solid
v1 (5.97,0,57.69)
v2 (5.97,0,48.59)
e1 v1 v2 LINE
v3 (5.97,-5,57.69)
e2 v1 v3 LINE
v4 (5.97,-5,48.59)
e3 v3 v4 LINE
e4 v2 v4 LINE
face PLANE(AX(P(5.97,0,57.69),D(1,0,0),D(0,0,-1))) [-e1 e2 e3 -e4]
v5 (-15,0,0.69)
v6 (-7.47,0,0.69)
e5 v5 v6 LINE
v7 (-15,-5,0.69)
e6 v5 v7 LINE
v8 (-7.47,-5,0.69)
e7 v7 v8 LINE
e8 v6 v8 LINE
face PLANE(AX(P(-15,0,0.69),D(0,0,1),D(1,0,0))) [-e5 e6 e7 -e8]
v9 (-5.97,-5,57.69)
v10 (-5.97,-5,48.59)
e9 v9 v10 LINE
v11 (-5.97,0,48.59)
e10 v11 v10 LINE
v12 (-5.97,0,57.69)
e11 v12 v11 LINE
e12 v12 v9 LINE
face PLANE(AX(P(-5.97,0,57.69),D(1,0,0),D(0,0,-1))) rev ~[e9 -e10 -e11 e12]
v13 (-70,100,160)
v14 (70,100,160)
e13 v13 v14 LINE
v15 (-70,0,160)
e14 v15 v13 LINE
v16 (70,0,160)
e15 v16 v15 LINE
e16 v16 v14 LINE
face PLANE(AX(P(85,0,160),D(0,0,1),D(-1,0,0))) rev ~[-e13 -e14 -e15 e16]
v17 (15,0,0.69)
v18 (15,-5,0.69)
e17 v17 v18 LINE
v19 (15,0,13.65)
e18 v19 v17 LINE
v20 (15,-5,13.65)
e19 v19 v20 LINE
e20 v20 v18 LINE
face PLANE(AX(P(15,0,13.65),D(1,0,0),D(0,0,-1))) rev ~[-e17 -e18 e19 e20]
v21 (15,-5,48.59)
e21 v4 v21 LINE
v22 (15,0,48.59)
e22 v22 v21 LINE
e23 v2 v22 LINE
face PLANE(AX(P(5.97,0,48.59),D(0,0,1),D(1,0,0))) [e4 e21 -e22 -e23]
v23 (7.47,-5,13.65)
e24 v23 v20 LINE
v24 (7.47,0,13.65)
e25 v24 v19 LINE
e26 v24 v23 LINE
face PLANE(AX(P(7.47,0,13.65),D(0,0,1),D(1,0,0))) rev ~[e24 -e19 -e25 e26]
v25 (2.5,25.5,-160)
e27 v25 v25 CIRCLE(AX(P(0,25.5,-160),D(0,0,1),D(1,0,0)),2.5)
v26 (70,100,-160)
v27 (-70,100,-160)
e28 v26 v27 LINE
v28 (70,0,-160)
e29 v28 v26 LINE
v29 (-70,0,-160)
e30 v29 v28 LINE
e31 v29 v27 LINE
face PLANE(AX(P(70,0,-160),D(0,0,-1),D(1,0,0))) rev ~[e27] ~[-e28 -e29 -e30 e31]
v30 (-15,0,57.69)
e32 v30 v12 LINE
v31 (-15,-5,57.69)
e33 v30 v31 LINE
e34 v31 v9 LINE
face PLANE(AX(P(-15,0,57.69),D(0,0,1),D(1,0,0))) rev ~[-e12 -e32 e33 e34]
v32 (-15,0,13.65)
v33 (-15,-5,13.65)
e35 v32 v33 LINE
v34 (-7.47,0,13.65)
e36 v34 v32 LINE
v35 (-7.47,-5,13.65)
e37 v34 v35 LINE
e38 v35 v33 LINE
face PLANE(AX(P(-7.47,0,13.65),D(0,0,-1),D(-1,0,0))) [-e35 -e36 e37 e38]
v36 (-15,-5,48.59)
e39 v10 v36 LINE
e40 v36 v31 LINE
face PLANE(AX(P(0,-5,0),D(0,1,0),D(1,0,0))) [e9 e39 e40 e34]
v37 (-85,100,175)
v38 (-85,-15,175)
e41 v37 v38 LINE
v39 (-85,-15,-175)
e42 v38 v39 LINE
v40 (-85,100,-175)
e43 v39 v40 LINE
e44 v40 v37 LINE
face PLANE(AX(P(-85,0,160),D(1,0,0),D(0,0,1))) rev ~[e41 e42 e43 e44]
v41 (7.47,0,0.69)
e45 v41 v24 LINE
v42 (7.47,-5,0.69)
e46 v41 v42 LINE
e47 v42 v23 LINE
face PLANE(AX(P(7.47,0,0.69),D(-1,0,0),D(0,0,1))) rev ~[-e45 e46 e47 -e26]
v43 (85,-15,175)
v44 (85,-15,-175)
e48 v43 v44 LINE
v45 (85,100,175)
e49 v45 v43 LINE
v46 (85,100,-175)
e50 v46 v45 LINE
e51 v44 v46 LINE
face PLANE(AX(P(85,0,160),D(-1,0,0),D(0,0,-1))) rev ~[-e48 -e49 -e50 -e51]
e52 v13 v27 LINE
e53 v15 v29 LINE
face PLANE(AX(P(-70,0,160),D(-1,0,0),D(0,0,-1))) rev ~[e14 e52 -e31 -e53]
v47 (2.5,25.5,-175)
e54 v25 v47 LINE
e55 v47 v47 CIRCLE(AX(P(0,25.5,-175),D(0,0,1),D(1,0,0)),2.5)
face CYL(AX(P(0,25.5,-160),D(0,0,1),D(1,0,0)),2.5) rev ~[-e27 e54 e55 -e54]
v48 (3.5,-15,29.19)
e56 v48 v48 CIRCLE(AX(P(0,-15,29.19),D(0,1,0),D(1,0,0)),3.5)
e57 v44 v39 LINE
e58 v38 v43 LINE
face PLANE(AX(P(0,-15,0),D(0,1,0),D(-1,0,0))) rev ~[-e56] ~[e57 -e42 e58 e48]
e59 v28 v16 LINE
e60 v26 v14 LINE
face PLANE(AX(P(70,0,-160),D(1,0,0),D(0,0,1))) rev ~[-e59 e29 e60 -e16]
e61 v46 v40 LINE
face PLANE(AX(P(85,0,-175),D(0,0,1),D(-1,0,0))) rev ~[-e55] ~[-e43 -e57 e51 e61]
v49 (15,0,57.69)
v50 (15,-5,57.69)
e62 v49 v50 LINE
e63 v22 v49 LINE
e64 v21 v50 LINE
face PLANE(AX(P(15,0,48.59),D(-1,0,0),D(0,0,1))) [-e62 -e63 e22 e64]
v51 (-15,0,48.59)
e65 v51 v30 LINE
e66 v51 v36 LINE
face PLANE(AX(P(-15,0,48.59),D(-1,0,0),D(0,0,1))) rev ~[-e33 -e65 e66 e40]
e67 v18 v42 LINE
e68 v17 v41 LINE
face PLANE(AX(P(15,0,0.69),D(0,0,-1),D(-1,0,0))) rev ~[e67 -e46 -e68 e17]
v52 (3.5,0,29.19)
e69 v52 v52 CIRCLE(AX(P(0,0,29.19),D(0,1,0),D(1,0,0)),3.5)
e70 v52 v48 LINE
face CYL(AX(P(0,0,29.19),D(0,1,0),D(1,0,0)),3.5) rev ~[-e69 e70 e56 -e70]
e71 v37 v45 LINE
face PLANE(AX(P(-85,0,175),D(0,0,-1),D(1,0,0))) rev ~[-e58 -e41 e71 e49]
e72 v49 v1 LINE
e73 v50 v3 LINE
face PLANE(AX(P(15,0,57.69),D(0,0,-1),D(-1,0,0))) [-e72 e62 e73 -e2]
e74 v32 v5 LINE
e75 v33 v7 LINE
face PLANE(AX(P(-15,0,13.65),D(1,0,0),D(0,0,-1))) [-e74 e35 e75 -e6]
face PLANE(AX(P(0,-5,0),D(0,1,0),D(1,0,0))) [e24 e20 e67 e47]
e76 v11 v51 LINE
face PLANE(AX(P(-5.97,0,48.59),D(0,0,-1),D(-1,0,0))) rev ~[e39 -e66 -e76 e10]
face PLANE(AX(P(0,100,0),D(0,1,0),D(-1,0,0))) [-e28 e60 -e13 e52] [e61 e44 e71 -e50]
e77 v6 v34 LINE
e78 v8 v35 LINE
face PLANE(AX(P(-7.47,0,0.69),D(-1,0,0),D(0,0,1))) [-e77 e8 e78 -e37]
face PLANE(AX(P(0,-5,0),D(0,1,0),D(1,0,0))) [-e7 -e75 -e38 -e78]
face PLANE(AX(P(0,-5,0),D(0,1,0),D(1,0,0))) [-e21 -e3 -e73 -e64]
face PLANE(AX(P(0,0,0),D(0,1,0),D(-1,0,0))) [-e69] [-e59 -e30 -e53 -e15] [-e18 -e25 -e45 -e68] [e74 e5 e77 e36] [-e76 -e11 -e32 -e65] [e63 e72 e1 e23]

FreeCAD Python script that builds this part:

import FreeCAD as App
import Part
import Sketcher

doc = App.newDocument("Part")
body = doc.addObject("PartDesign::Body", "Body")

# Sketch on XZ plane
sketch1 = doc.addObject("Sketcher::SketchObject", "Sketch")
body.addObject(sketch1)
sketch1.AttachmentSupport = (doc.XZ_Plane, [""])
sketch1.MapMode = "FlatFace"
sketch1.addGeometry([
    Part.LineSegment(App.Vector(85, -160, 0), App.Vector(85, -175, 0)),
    Part.LineSegment(App.Vector(85, -175, 0), App.Vector(-85, -175, 0)),
    Part.LineSegment(App.Vector(-85, -175, 0), App.Vector(-85, -160, 0)),
    Part.LineSegment(App.Vector(-85, -160, 0), App.Vector(85, -160, 0)),
], False)
sketch1.addConstraint([
    Sketcher.Constraint("Coincident", 0, 2, 1, 1),
    Sketcher.Constraint("Coincident", 1, 2, 2, 1),
    Sketcher.Constraint("Coincident", 2, 2, 3, 1),
    Sketcher.Constraint("Coincident", 3, 2, 0, 1),
    Sketcher.Constraint("Vertical", 0),
    Sketcher.Constraint("Horizontal", 1),
    Sketcher.Constraint("Vertical", 2),
    Sketcher.Constraint("Horizontal", 3),
    Sketcher.Constraint("DistanceX", 1, 2, 1, 1, 170.0),
    Sketcher.Constraint("DistanceY", 0, 2, 0, 1, 15.0),
    Sketcher.Constraint("DistanceX", -1, 1, 0, 2, 85.0),
    Sketcher.Constraint("DistanceY", 0, 2, -1, 1, 175.0),
])
pad1 = doc.addObject("PartDesign::Pad", "Pad")
body.addObject(pad1)
pad1.Profile = sketch1
pad1.Length = 100
pad1.Reversed = True

# Sketch on XZ plane
sketch2 = doc.addObject("Sketcher::SketchObject", "Sketch001")
body.addObject(sketch2)
sketch2.AttachmentSupport = (doc.XZ_Plane, [""])
sketch2.MapMode = "FlatFace"
sketch2.addGeometry([
    Part.LineSegment(App.Vector(-70, -160, 0), App.Vector(-85, -160, 0)),
    Part.LineSegment(App.Vector(-85, -160, 0), App.Vector(-85, 160, 0)),
    Part.LineSegment(App.Vector(-85, 160, 0), App.Vector(-70, 160, 0)),
    Part.LineSegment(App.Vector(-70, 160, 0), App.Vector(-70, -160, 0)),
], False)
sketch2.addConstraint([
    Sketcher.Constraint("Coincident", 0, 2, 1, 1),
    Sketcher.Constraint("Coincident", 1, 2, 2, 1),
    Sketcher.Constraint("Coincident", 2, 2, 3, 1),
    Sketcher.Constraint("Coincident", 3, 2, 0, 1),
    Sketcher.Constraint("Horizontal", 0),
    Sketcher.Constraint("Vertical", 1),
    Sketcher.Constraint("Horizontal", 2),
    Sketcher.Constraint("Vertical", 3),
    Sketcher.Constraint("DistanceX", 0, 2, 0, 1, 15.0),
    Sketcher.Constraint("DistanceY", 1, 1, 1, 2, 320.0),
    Sketcher.Constraint("DistanceX", 0, 2, -1, 1, 85.0),
    Sketcher.Constraint("DistanceY", 0, 2, -1, 1, 160.0),
])
pad2 = doc.addObject("PartDesign::Pad", "Pad001")
body.addObject(pad2)
pad2.Profile = sketch2
pad2.Length = 100
pad2.Reversed = True

# Sketch on XZ plane
sketch3 = doc.addObject("Sketcher::SketchObject", "Sketch002")
body.addObject(sketch3)
sketch3.AttachmentSupport = (doc.XZ_Plane, [""])
sketch3.MapMode = "FlatFace"
sketch3.addGeometry([
    Part.LineSegment(App.Vector(85, -175, 0), App.Vector(-85, -175, 0)),
    Part.LineSegment(App.Vector(-85, -175, 0), App.Vector(-85, 175, 0)),
    Part.LineSegment(App.Vector(-85, 175, 0), App.Vector(85, 175, 0)),
    Part.LineSegment(App.Vector(85, 175, 0), App.Vector(85, -175, 0)),
], False)
sketch3.addConstraint([
    Sketcher.Constraint("Coincident", 0, 2, 1, 1),
    Sketcher.Constraint("Coincident", 1, 2, 2, 1),
    Sketcher.Constraint("Coincident", 2, 2, 3, 1),
    Sketcher.Constraint("Coincident", 3, 2, 0, 1),
    Sketcher.Constraint("Horizontal", 0),
    Sketcher.Constraint("Vertical", 1),
    Sketcher.Constraint("Horizontal", 2),
    Sketcher.Constraint("Vertical", 3),
    Sketcher.Constraint("Symmetric", 0, 2, 2, 2, -1, 1),
    Sketcher.Constraint("DistanceX", 0, 2, 0, 1, 170.0),
    Sketcher.Constraint("DistanceY", 1, 1, 1, 2, 350.0),
])
pad3 = doc.addObject("PartDesign::Pad", "Pad002")
body.addObject(pad3)
pad3.Profile = sketch3
pad3.Length = 15

# Sketch on XY plane
sketch4 = doc.addObject("Sketcher::SketchObject", "Sketch003")
body.addObject(sketch4)
sketch4.AttachmentSupport = (doc.XY_Plane, [""])
sketch4.MapMode = "FlatFace"
sketch4.AttachmentOffset = App.Placement(App.Vector(0, 0, -160), App.Rotation())
sketch4.addGeometry(Part.Circle(App.Vector(0, 25.5, 0), App.Vector(0, 0, 1), 2.5), False)
sketch4.addConstraint([
    Sketcher.Constraint("PointOnObject", 0, 3, -2),
    Sketcher.Constraint("Diameter", 0, 5.0),
    Sketcher.Constraint("DistanceY", -1, 1, 0, 3, 25.5),
])
pocket1 = doc.addObject("PartDesign::Pocket", "Pocket")
body.addObject(pocket1)
pocket1.Profile = sketch4
pocket1.Type = "ThroughAll"

# Sketch on XZ plane
sketch5 = doc.addObject("Sketcher::SketchObject", "Sketch004")
body.addObject(sketch5)
sketch5.AttachmentSupport = (doc.XZ_Plane, [""])
sketch5.MapMode = "FlatFace"
sketch5.addGeometry([
    Part.LineSegment(App.Vector(85, 175, 0), App.Vector(85, 160, 0)),
    Part.LineSegment(App.Vector(85, 160, 0), App.Vector(-85, 160, 0)),
    Part.LineSegment(App.Vector(-85, 160, 0), App.Vector(-85, 175, 0)),
    Part.LineSegment(App.Vector(-85, 175, 0), App.Vector(85, 175, 0)),
], False)
sketch5.addConstraint([
    Sketcher.Constraint("Coincident", 0, 2, 1, 1),
    Sketcher.Constraint("Coincident", 1, 2, 2, 1),
    Sketcher.Constraint("Coincident", 2, 2, 3, 1),
    Sketcher.Constraint("Coincident", 3, 2, 0, 1),
    Sketcher.Constraint("Vertical", 0),
    Sketcher.Constraint("Horizontal", 1),
    Sketcher.Constraint("Vertical", 2),
    Sketcher.Constraint("Horizontal", 3),
    Sketcher.Constraint("DistanceX", 1, 2, 1, 1, 170.0),
    Sketcher.Constraint("DistanceY", 0, 2, 0, 1, 15.0),
    Sketcher.Constraint("DistanceX", -1, 1, 0, 2, 85.0),
    Sketcher.Constraint("DistanceY", -1, 1, 0, 2, 160.0),
])
pad4 = doc.addObject("PartDesign::Pad", "Pad003")
body.addObject(pad4)
pad4.Profile = sketch5
pad4.Length = 100
pad4.Reversed = True

# Sketch on XZ plane
sketch6 = doc.addObject("Sketcher::SketchObject", "Sketch005")
body.addObject(sketch6)
sketch6.AttachmentSupport = (doc.XZ_Plane, [""])
sketch6.MapMode = "FlatFace"
sketch6.addGeometry([
    Part.LineSegment(App.Vector(85, 160, 0), App.Vector(85, -160, 0)),
    Part.LineSegment(App.Vector(85, -160, 0), App.Vector(70, -160, 0)),
    Part.LineSegment(App.Vector(70, -160, 0), App.Vector(70, 160, 0)),
    Part.LineSegment(App.Vector(70, 160, 0), App.Vector(85, 160, 0)),
], False)
sketch6.addConstraint([
    Sketcher.Constraint("Coincident", 0, 2, 1, 1),
    Sketcher.Constraint("Coincident", 1, 2, 2, 1),
    Sketcher.Constraint("Coincident", 2, 2, 3, 1),
    Sketcher.Constraint("Coincident", 3, 2, 0, 1),
    Sketcher.Constraint("Vertical", 0),
    Sketcher.Constraint("Horizontal", 1),
    Sketcher.Constraint("Vertical", 2),
    Sketcher.Constraint("Horizontal", 3),
    Sketcher.Constraint("DistanceX", 1, 2, 1, 1, 15.0),
    Sketcher.Constraint("DistanceY", 0, 2, 0, 1, 320.0),
    Sketcher.Constraint("DistanceX", -1, 1, 0, 2, 85.0),
    Sketcher.Constraint("DistanceY", 0, 2, -1, 1, 160.0),
])
pad5 = doc.addObject("PartDesign::Pad", "Pad004")
body.addObject(pad5)
pad5.Profile = sketch6
pad5.Length = 100
pad5.Reversed = True

# Sketch on XZ plane
sketch7 = doc.addObject("Sketcher::SketchObject", "Sketch006")
body.addObject(sketch7)
sketch7.AttachmentSupport = (doc.XZ_Plane, [""])
sketch7.MapMode = "FlatFace"
sketch7.addGeometry([
    Part.LineSegment(App.Vector(6, 58, 0), App.Vector(15, 58, 0)),  # 0
    Part.LineSegment(App.Vector(15, 58, 0), App.Vector(15, 49, 0)),  # 1
    Part.LineSegment(App.Vector(15, 49, 0), App.Vector(6, 49, 0)),  # 2
    Part.LineSegment(App.Vector(6, 49, 0), App.Vector(6, 58, 0)),  # 3
    Part.LineSegment(App.Vector(15, 14, 0), App.Vector(15, 1, 0)),  # 4
    Part.LineSegment(App.Vector(15, 1, 0), App.Vector(7, 1, 0)),  # 5
    Part.LineSegment(App.Vector(7, 1, 0), App.Vector(7, 14, 0)),  # 6
    Part.LineSegment(App.Vector(7, 14, 0), App.Vector(15, 14, 0)),  # 7
    Part.LineSegment(App.Vector(-15, 49, 0), App.Vector(-15, 58, 0)),  # 8
    Part.LineSegment(App.Vector(-15, 58, 0), App.Vector(-6, 58, 0)),  # 9
    Part.LineSegment(App.Vector(-6, 58, 0), App.Vector(-6, 49, 0)),  # 10
    Part.LineSegment(App.Vector(-6, 49, 0), App.Vector(-15, 49, 0)),  # 11
    Part.LineSegment(App.Vector(-7, 1, 0), App.Vector(-15, 1, 0)),  # 12
    Part.LineSegment(App.Vector(-15, 1, 0), App.Vector(-15, 14, 0)),  # 13
    Part.LineSegment(App.Vector(-15, 14, 0), App.Vector(-7, 14, 0)),  # 14
    Part.LineSegment(App.Vector(-7, 14, 0), App.Vector(-7, 1, 0)),  # 15
], False)
sketch7.addConstraint([
    Sketcher.Constraint("Coincident", 0, 2, 1, 1),
    Sketcher.Constraint("Coincident", 1, 2, 2, 1),
    Sketcher.Constraint("Coincident", 2, 2, 3, 1),
    Sketcher.Constraint("Coincident", 3, 2, 0, 1),
    Sketcher.Constraint("Coincident", 4, 2, 5, 1),
    Sketcher.Constraint("Coincident", 5, 2, 6, 1),
    Sketcher.Constraint("Coincident", 6, 2, 7, 1),
    Sketcher.Constraint("Coincident", 7, 2, 4, 1),
    Sketcher.Constraint("Coincident", 8, 2, 9, 1),
    Sketcher.Constraint("Coincident", 9, 2, 10, 1),
    Sketcher.Constraint("Coincident", 10, 2, 11, 1),
    Sketcher.Constraint("Coincident", 11, 2, 8, 1),
    Sketcher.Constraint("Coincident", 12, 2, 13, 1),
    Sketcher.Constraint("Coincident", 13, 2, 14, 1),
    Sketcher.Constraint("Coincident", 14, 2, 15, 1),
    Sketcher.Constraint("Coincident", 15, 2, 12, 1),
    Sketcher.Constraint("Horizontal", 0),
    Sketcher.Constraint("Vertical", 1),
    Sketcher.Constraint("Horizontal", 2),
    Sketcher.Constraint("Vertical", 3),
    Sketcher.Constraint("Vertical", 4),
    Sketcher.Constraint("Horizontal", 5),
    Sketcher.Constraint("Vertical", 6),
    Sketcher.Constraint("Horizontal", 7),
    Sketcher.Constraint("Vertical", 8),
    Sketcher.Constraint("Horizontal", 9),
    Sketcher.Constraint("Vertical", 10),
    Sketcher.Constraint("Horizontal", 11),
    Sketcher.Constraint("Horizontal", 12),
    Sketcher.Constraint("Vertical", 13),
    Sketcher.Constraint("Horizontal", 14),
    Sketcher.Constraint("Vertical", 15),
    Sketcher.Constraint("Symmetric", 0, 2, 8, 2, -2),
    Sketcher.Constraint("Symmetric", 2, 2, 10, 2, -2),
    Sketcher.Constraint("Symmetric", 4, 2, 12, 2, -2),
    Sketcher.Constraint("Symmetric", 6, 2, 14, 2, -2),
    Sketcher.Constraint("Vertical", 1, 2, 4, 2),
    Sketcher.Constraint("DistanceY", 1, 2, 1, 1, 9.1),
    Sketcher.Constraint("DistanceX", 8, 2, 0, 2, 30.0),
    Sketcher.Constraint("DistanceX", 0, 1, 0, 2, 9.03),
    Sketcher.Constraint("DistanceX", 5, 2, 5, 1, 7.53),
    Sketcher.Constraint("DistanceY", 4, 2, 4, 1, 12.96),
    Sketcher.Constraint("DistanceY", 4, 2, 0, 2, 57.0),
    Sketcher.Constraint("DistanceY", -1, 1, 0, 2, 57.69),
])
pocket2 = doc.addObject("PartDesign::Pocket", "Pocket001")
body.addObject(pocket2)
pocket2.Profile = sketch7
pocket2.Length = 5
pocket2.Reversed = True

# Sketch on XZ plane
sketch8 = doc.addObject("Sketcher::SketchObject", "Sketch007")
body.addObject(sketch8)
sketch8.AttachmentSupport = (doc.XZ_Plane, [""])
sketch8.MapMode = "FlatFace"
sketch8.addGeometry(Part.Circle(App.Vector(0, 29.2, 0), App.Vector(0, 0, 1), 3.5), False)
sketch8.addConstraint([
    Sketcher.Constraint("PointOnObject", 0, 3, -2),
    Sketcher.Constraint("Diameter", 0, 7.0),
    Sketcher.Constraint("DistanceY", -1, 1, 0, 3, 29.19),
])
pocket3 = doc.addObject("PartDesign::Pocket", "Pocket002")
body.addObject(pocket3)
pocket3.Profile = sketch8
pocket3.Type = "ThroughAll"
pocket3.Reversed = True

doc.recompute()
